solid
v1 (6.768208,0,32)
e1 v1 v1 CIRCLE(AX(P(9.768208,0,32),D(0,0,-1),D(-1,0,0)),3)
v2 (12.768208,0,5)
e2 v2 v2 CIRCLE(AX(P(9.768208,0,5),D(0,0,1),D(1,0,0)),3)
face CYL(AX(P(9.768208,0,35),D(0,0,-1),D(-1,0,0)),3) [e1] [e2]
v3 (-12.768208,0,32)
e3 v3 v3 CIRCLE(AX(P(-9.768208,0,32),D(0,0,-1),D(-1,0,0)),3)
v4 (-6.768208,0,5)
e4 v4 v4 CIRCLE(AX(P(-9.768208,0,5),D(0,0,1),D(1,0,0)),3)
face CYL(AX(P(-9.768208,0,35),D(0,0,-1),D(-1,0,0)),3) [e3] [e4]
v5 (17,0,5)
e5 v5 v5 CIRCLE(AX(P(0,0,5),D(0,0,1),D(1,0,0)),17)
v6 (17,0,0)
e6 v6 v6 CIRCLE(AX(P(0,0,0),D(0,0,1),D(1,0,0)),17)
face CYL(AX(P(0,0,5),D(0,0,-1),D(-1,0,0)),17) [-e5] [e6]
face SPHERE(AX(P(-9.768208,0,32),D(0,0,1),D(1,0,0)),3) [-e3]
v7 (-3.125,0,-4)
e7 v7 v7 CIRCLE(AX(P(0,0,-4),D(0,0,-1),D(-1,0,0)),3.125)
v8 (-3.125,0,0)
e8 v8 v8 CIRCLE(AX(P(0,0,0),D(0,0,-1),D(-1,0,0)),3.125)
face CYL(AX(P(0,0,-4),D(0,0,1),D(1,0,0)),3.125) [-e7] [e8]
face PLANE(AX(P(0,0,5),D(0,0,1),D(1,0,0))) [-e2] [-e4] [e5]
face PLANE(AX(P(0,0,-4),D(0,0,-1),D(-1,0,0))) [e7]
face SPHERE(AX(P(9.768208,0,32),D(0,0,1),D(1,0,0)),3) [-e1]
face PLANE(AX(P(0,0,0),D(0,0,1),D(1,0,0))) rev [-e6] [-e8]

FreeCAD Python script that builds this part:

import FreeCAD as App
import Part
import Sketcher

V = App.Vector


def edges_at(feature, points):
    """Names of the edges that pass closest to the given points."""
    edges = feature.Shape.Edges
    near = lambda p: min(range(len(edges)), key=lambda i: edges[i].distToShape(Part.Vertex(*p))[0])
    return sorted({f"Edge{near(p) + 1}" for p in points})

doc = App.newDocument("Part")
params = doc.addObject("Spreadsheet::Sheet", "Params")
for row, (alias, value) in enumerate([
    ("sketch1_diameter", "34 mm"),
    ("pad1_length", "5 mm"),
    ("sketch2_diameter", "6 mm"),
    ("pad2_length", "30 mm"),
    ("sketch3_diameter", "6.25 mm"),
    ("pad3_length", "4 mm"),
    ("fillet_radius", "3 mm"),
], start=1):
    params.set(f"A{row}", alias)
    params.set(f"B{row}", "=" + value)
    params.setAlias(f"B{row}", alias)

body = doc.addObject("PartDesign::Body", "Body")

sketch1 = doc.addObject("Sketcher::SketchObject", "Sketch")
body.addObject(sketch1)
sketch1.AttachmentSupport = (doc.XY_Plane, [""])
sketch1.MapMode = "FlatFace"
sketch1.addGeometry(Part.Circle(V(0, 0, 0), V(0, 0, 1), 17), False)
sketch1.addConstraint(Sketcher.Constraint("Coincident", 0, 3, -1, 1))
sketch1.addConstraint(Sketcher.Constraint("Diameter", 0, 34.0))
sketch1.setExpression("Constraints[1]", "Params.sketch1_diameter")
pad1 = doc.addObject("PartDesign::Pad", "Pad")
body.addObject(pad1)
pad1.Profile = sketch1
pad1.setExpression("Length", "Params.pad1_length")

sketch2 = doc.addObject("Sketcher::SketchObject", "Sketch001")
body.addObject(sketch2)
sketch2.AttachmentSupport = (doc.XY_Plane, [""])
sketch2.MapMode = "FlatFace"
sketch2.AttachmentOffset = App.Placement(V(0, 0, 5), App.Rotation())
sketch2.addGeometry(Part.Circle(V(-9.768208, 0, 0), V(0, 0, 1), 3), False)
sketch2.addGeometry(Part.Circle(V(9.768208, 0, 0), V(0, 0, 1), 3), False)
sketch2.addConstraint(Sketcher.Constraint("Equal", 0, 1))
sketch2.addConstraint(Sketcher.Constraint("Symmetric", 0, 3, 1, 3, -1, 1))
sketch2.addConstraint(Sketcher.Constraint("PointOnObject", 0, 3, -1))
sketch2.addConstraint(Sketcher.Constraint("Diameter", 0, 6.0))
sketch2.addConstraint(Sketcher.Constraint("DistanceX", 0, 3, -1, 1, 9.768208))
sketch2.setExpression("Constraints[3]", "Params.sketch2_diameter")
pad2 = doc.addObject("PartDesign::Pad", "Pad001")
body.addObject(pad2)
pad2.Profile = sketch2
pad2.setExpression("Length", "Params.pad2_length")

sketch3 = doc.addObject("Sketcher::SketchObject", "Sketch002")
body.addObject(sketch3)
sketch3.AttachmentSupport = (doc.XY_Plane, [""])
sketch3.MapMode = "FlatFace"
sketch3.addGeometry(Part.Circle(V(0, 0, 0), V(0, 0, 1), 3.125), False)
sketch3.addConstraint(Sketcher.Constraint("Coincident", 0, 3, -1, 1))
sketch3.addConstraint(Sketcher.Constraint("Diameter", 0, 6.25))
sketch3.setExpression("Constraints[1]", "Params.sketch3_diameter")
pad3 = doc.addObject("PartDesign::Pad", "Pad002")
body.addObject(pad3)
pad3.Profile = sketch3
pad3.setExpression("Length", "Params.pad3_length")
pad3.Reversed = True
doc.recompute()

fillet = doc.addObject("PartDesign::Fillet", "Fillet")
body.addObject(fillet)
fillet.Base = (pad3, edges_at(pad3, [(-12.768, 0, 35), (6.768, 0, 35)]))
fillet.setExpression("Radius", "Params.fillet_radius")

doc.recompute()
